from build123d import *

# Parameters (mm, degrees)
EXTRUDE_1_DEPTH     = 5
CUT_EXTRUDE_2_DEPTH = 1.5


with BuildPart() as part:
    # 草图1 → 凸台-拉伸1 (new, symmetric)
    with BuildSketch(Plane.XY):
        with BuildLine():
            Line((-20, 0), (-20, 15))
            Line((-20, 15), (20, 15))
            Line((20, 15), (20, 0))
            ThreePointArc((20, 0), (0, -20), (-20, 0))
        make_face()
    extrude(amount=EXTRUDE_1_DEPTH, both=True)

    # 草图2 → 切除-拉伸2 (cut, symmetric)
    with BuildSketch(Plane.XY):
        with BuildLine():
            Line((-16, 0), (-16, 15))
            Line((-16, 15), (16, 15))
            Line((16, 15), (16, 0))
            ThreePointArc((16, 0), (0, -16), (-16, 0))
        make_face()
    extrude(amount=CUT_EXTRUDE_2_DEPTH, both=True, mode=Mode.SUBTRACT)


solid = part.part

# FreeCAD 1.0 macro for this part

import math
import FreeCAD as App
import Part
import Sketcher

V = App.Vector

doc = App.newDocument("Part")
body = doc.addObject("PartDesign::Body", "Body")

# Sketch on XY plane
sketch1 = body.newObject("Sketcher::SketchObject", "Sketch")
sketch1.AttachmentSupport = (doc.getObject("XY_Plane"), [""])
sketch1.MapMode = "FlatFace"
sketch1.addGeometry([
    Part.LineSegment(V(-20, 15, 0), V(-20, 0, 0)),
    Part.ArcOfCircle(Part.Circle(V(0, 0, 0), V(0, 0, 1), 20), math.radians(180), math.radians(360)),
    Part.LineSegment(V(20, 0, 0), V(20, 15, 0)),
    Part.LineSegment(V(20, 15, 0), V(-20, 15, 0)),
], False)
sketch1.addConstraint([
    Sketcher.Constraint("Tangent", 0, 2, 1, 1),
    Sketcher.Constraint("Tangent", 1, 2, 2, 1),
    Sketcher.Constraint("Coincident", 2, 2, 3, 1),
    Sketcher.Constraint("Coincident", 3, 2, 0, 1),
    Sketcher.Constraint("Vertical", 0),
    Sketcher.Constraint("Vertical", 2),
    Sketcher.Constraint("Horizontal", 3),
    Sketcher.Constraint("Coincident", 1, 3, -1, 1),
    Sketcher.Constraint("Radius", 1, 20.0),
    Sketcher.Constraint("DistanceY", 0, 2, 0, 1, 15.0),
])
pad1 = body.newObject("PartDesign::Pad", "Pad")
pad1.Profile = sketch1
pad1.Length = 10
pad1.Midplane = True

# Sketch on XY plane
sketch2 = body.newObject("Sketcher::SketchObject", "Sketch001")
sketch2.AttachmentSupport = (doc.getObject("XY_Plane"), [""])
sketch2.MapMode = "FlatFace"
sketch2.addGeometry([
    Part.LineSegment(V(-16, 15, 0), V(-16, 0, 0)),
    Part.ArcOfCircle(Part.Circle(V(0, 0, 0), V(0, 0, 1), 16), math.radians(180), math.radians(360)),
    Part.LineSegment(V(16, 0, 0), V(16, 15, 0)),
    Part.LineSegment(V(16, 15, 0), V(-16, 15, 0)),
], False)
sketch2.addConstraint([
    Sketcher.Constraint("Tangent", 0, 2, 1, 1),
    Sketcher.Constraint("Tangent", 1, 2, 2, 1),
    Sketcher.Constraint("Coincident", 2, 2, 3, 1),
    Sketcher.Constraint("Coincident", 3, 2, 0, 1),
    Sketcher.Constraint("Vertical", 0),
    Sketcher.Constraint("Vertical", 2),
    Sketcher.Constraint("Horizontal", 3),
    Sketcher.Constraint("Coincident", 1, 3, -1, 1),
    Sketcher.Constraint("Radius", 1, 16.0),
    Sketcher.Constraint("DistanceY", 0, 2, 0, 1, 15.0),
])
pocket1 = body.newObject("PartDesign::Pocket", "Pocket")
pocket1.Profile = sketch2
pocket1.Length = 3
pocket1.Midplane = True

doc.recompute()
